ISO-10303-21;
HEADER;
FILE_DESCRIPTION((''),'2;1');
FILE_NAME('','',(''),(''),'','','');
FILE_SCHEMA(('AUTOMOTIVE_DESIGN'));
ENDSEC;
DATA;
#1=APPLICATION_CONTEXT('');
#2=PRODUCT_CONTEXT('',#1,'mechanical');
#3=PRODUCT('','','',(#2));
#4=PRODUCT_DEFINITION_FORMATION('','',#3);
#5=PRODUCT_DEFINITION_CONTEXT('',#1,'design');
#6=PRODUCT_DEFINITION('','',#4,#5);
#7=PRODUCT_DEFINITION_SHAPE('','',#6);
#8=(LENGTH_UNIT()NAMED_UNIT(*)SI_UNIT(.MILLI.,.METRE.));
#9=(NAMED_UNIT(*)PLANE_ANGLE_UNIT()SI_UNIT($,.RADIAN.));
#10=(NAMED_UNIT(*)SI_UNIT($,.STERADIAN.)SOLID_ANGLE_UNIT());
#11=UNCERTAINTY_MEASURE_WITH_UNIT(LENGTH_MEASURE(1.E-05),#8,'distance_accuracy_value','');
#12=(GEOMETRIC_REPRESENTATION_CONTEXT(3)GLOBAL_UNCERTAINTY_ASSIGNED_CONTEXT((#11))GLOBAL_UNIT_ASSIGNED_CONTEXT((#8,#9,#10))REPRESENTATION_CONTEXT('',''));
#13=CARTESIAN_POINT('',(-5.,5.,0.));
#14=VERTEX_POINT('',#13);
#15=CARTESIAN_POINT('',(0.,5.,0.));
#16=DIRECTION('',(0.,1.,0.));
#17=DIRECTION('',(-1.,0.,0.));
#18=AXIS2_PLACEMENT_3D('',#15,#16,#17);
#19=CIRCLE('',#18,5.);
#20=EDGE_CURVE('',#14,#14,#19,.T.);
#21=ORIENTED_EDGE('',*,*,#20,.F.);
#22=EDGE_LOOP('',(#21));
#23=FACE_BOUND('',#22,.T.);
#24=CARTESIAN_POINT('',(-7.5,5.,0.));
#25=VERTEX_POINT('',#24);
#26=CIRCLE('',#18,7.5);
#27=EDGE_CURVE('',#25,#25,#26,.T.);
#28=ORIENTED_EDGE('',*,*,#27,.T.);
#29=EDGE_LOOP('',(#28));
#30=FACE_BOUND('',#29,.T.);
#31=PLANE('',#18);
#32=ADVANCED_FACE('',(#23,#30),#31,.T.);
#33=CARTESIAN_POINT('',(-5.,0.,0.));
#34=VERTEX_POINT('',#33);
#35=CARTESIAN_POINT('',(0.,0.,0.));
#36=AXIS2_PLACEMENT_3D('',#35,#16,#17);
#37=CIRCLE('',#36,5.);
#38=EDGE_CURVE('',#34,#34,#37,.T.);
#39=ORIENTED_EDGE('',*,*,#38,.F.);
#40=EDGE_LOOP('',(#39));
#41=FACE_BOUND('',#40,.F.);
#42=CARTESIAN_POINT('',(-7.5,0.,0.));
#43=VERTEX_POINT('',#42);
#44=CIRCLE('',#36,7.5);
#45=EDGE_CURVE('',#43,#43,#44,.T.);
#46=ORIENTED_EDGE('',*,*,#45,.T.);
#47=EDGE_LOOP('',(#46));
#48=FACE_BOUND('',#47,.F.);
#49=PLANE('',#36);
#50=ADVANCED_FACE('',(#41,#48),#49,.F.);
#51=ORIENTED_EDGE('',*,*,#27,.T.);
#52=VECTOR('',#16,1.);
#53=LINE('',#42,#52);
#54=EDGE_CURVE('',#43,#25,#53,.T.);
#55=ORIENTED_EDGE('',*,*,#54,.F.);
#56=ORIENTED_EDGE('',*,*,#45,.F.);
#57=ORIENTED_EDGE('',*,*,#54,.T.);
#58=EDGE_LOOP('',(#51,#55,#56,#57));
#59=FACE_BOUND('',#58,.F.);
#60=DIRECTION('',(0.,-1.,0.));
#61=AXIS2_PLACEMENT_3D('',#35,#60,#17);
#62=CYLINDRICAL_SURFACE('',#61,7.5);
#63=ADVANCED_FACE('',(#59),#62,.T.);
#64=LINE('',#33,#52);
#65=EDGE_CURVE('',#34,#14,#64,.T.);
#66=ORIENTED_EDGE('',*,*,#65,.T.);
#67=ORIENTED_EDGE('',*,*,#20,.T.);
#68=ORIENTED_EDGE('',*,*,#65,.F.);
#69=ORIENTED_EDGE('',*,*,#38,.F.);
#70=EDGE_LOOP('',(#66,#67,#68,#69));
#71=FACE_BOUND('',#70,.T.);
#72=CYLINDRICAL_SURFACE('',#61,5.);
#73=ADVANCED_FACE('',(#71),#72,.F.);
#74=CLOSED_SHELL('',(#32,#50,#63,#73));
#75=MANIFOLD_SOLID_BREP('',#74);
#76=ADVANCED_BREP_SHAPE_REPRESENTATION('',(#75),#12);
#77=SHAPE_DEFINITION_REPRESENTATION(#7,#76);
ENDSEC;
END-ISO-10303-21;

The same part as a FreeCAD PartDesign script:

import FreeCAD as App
import Part
import Sketcher
Q = App.Units.Quantity

doc = App.newDocument("Part")
body = doc.addObject("PartDesign::Body", "Body")

# Sketch on XZ plane
sketch1 = body.newObject("Sketcher::SketchObject", "Sketch")
sketch1.AttachmentSupport = (doc.getObject("XZ_Plane"), [""])
sketch1.MapMode = "FlatFace"
sketch1.addGeometry(Part.Circle(App.Vector(0, 0, 0), App.Vector(0, 0, 1), 7.5), False)
sketch1.addGeometry(Part.Circle(App.Vector(0, 0, 0), App.Vector(0, 0, 1), 5), False)
sketch1.addConstraint(Sketcher.Constraint("Coincident", 0, 3, -1, 1))
sketch1.addConstraint(Sketcher.Constraint("Coincident", 1, 3, -1, 1))
sketch1.addConstraint(Sketcher.Constraint("Diameter", 0, Q("15 mm")))
sketch1.addConstraint(Sketcher.Constraint("Diameter", 1, Q("10 mm")))
pad1 = body.newObject("PartDesign::Pad", "Pad")
pad1.Profile = sketch1
pad1.Length = 5
pad1.Reversed = True

doc.recompute()
